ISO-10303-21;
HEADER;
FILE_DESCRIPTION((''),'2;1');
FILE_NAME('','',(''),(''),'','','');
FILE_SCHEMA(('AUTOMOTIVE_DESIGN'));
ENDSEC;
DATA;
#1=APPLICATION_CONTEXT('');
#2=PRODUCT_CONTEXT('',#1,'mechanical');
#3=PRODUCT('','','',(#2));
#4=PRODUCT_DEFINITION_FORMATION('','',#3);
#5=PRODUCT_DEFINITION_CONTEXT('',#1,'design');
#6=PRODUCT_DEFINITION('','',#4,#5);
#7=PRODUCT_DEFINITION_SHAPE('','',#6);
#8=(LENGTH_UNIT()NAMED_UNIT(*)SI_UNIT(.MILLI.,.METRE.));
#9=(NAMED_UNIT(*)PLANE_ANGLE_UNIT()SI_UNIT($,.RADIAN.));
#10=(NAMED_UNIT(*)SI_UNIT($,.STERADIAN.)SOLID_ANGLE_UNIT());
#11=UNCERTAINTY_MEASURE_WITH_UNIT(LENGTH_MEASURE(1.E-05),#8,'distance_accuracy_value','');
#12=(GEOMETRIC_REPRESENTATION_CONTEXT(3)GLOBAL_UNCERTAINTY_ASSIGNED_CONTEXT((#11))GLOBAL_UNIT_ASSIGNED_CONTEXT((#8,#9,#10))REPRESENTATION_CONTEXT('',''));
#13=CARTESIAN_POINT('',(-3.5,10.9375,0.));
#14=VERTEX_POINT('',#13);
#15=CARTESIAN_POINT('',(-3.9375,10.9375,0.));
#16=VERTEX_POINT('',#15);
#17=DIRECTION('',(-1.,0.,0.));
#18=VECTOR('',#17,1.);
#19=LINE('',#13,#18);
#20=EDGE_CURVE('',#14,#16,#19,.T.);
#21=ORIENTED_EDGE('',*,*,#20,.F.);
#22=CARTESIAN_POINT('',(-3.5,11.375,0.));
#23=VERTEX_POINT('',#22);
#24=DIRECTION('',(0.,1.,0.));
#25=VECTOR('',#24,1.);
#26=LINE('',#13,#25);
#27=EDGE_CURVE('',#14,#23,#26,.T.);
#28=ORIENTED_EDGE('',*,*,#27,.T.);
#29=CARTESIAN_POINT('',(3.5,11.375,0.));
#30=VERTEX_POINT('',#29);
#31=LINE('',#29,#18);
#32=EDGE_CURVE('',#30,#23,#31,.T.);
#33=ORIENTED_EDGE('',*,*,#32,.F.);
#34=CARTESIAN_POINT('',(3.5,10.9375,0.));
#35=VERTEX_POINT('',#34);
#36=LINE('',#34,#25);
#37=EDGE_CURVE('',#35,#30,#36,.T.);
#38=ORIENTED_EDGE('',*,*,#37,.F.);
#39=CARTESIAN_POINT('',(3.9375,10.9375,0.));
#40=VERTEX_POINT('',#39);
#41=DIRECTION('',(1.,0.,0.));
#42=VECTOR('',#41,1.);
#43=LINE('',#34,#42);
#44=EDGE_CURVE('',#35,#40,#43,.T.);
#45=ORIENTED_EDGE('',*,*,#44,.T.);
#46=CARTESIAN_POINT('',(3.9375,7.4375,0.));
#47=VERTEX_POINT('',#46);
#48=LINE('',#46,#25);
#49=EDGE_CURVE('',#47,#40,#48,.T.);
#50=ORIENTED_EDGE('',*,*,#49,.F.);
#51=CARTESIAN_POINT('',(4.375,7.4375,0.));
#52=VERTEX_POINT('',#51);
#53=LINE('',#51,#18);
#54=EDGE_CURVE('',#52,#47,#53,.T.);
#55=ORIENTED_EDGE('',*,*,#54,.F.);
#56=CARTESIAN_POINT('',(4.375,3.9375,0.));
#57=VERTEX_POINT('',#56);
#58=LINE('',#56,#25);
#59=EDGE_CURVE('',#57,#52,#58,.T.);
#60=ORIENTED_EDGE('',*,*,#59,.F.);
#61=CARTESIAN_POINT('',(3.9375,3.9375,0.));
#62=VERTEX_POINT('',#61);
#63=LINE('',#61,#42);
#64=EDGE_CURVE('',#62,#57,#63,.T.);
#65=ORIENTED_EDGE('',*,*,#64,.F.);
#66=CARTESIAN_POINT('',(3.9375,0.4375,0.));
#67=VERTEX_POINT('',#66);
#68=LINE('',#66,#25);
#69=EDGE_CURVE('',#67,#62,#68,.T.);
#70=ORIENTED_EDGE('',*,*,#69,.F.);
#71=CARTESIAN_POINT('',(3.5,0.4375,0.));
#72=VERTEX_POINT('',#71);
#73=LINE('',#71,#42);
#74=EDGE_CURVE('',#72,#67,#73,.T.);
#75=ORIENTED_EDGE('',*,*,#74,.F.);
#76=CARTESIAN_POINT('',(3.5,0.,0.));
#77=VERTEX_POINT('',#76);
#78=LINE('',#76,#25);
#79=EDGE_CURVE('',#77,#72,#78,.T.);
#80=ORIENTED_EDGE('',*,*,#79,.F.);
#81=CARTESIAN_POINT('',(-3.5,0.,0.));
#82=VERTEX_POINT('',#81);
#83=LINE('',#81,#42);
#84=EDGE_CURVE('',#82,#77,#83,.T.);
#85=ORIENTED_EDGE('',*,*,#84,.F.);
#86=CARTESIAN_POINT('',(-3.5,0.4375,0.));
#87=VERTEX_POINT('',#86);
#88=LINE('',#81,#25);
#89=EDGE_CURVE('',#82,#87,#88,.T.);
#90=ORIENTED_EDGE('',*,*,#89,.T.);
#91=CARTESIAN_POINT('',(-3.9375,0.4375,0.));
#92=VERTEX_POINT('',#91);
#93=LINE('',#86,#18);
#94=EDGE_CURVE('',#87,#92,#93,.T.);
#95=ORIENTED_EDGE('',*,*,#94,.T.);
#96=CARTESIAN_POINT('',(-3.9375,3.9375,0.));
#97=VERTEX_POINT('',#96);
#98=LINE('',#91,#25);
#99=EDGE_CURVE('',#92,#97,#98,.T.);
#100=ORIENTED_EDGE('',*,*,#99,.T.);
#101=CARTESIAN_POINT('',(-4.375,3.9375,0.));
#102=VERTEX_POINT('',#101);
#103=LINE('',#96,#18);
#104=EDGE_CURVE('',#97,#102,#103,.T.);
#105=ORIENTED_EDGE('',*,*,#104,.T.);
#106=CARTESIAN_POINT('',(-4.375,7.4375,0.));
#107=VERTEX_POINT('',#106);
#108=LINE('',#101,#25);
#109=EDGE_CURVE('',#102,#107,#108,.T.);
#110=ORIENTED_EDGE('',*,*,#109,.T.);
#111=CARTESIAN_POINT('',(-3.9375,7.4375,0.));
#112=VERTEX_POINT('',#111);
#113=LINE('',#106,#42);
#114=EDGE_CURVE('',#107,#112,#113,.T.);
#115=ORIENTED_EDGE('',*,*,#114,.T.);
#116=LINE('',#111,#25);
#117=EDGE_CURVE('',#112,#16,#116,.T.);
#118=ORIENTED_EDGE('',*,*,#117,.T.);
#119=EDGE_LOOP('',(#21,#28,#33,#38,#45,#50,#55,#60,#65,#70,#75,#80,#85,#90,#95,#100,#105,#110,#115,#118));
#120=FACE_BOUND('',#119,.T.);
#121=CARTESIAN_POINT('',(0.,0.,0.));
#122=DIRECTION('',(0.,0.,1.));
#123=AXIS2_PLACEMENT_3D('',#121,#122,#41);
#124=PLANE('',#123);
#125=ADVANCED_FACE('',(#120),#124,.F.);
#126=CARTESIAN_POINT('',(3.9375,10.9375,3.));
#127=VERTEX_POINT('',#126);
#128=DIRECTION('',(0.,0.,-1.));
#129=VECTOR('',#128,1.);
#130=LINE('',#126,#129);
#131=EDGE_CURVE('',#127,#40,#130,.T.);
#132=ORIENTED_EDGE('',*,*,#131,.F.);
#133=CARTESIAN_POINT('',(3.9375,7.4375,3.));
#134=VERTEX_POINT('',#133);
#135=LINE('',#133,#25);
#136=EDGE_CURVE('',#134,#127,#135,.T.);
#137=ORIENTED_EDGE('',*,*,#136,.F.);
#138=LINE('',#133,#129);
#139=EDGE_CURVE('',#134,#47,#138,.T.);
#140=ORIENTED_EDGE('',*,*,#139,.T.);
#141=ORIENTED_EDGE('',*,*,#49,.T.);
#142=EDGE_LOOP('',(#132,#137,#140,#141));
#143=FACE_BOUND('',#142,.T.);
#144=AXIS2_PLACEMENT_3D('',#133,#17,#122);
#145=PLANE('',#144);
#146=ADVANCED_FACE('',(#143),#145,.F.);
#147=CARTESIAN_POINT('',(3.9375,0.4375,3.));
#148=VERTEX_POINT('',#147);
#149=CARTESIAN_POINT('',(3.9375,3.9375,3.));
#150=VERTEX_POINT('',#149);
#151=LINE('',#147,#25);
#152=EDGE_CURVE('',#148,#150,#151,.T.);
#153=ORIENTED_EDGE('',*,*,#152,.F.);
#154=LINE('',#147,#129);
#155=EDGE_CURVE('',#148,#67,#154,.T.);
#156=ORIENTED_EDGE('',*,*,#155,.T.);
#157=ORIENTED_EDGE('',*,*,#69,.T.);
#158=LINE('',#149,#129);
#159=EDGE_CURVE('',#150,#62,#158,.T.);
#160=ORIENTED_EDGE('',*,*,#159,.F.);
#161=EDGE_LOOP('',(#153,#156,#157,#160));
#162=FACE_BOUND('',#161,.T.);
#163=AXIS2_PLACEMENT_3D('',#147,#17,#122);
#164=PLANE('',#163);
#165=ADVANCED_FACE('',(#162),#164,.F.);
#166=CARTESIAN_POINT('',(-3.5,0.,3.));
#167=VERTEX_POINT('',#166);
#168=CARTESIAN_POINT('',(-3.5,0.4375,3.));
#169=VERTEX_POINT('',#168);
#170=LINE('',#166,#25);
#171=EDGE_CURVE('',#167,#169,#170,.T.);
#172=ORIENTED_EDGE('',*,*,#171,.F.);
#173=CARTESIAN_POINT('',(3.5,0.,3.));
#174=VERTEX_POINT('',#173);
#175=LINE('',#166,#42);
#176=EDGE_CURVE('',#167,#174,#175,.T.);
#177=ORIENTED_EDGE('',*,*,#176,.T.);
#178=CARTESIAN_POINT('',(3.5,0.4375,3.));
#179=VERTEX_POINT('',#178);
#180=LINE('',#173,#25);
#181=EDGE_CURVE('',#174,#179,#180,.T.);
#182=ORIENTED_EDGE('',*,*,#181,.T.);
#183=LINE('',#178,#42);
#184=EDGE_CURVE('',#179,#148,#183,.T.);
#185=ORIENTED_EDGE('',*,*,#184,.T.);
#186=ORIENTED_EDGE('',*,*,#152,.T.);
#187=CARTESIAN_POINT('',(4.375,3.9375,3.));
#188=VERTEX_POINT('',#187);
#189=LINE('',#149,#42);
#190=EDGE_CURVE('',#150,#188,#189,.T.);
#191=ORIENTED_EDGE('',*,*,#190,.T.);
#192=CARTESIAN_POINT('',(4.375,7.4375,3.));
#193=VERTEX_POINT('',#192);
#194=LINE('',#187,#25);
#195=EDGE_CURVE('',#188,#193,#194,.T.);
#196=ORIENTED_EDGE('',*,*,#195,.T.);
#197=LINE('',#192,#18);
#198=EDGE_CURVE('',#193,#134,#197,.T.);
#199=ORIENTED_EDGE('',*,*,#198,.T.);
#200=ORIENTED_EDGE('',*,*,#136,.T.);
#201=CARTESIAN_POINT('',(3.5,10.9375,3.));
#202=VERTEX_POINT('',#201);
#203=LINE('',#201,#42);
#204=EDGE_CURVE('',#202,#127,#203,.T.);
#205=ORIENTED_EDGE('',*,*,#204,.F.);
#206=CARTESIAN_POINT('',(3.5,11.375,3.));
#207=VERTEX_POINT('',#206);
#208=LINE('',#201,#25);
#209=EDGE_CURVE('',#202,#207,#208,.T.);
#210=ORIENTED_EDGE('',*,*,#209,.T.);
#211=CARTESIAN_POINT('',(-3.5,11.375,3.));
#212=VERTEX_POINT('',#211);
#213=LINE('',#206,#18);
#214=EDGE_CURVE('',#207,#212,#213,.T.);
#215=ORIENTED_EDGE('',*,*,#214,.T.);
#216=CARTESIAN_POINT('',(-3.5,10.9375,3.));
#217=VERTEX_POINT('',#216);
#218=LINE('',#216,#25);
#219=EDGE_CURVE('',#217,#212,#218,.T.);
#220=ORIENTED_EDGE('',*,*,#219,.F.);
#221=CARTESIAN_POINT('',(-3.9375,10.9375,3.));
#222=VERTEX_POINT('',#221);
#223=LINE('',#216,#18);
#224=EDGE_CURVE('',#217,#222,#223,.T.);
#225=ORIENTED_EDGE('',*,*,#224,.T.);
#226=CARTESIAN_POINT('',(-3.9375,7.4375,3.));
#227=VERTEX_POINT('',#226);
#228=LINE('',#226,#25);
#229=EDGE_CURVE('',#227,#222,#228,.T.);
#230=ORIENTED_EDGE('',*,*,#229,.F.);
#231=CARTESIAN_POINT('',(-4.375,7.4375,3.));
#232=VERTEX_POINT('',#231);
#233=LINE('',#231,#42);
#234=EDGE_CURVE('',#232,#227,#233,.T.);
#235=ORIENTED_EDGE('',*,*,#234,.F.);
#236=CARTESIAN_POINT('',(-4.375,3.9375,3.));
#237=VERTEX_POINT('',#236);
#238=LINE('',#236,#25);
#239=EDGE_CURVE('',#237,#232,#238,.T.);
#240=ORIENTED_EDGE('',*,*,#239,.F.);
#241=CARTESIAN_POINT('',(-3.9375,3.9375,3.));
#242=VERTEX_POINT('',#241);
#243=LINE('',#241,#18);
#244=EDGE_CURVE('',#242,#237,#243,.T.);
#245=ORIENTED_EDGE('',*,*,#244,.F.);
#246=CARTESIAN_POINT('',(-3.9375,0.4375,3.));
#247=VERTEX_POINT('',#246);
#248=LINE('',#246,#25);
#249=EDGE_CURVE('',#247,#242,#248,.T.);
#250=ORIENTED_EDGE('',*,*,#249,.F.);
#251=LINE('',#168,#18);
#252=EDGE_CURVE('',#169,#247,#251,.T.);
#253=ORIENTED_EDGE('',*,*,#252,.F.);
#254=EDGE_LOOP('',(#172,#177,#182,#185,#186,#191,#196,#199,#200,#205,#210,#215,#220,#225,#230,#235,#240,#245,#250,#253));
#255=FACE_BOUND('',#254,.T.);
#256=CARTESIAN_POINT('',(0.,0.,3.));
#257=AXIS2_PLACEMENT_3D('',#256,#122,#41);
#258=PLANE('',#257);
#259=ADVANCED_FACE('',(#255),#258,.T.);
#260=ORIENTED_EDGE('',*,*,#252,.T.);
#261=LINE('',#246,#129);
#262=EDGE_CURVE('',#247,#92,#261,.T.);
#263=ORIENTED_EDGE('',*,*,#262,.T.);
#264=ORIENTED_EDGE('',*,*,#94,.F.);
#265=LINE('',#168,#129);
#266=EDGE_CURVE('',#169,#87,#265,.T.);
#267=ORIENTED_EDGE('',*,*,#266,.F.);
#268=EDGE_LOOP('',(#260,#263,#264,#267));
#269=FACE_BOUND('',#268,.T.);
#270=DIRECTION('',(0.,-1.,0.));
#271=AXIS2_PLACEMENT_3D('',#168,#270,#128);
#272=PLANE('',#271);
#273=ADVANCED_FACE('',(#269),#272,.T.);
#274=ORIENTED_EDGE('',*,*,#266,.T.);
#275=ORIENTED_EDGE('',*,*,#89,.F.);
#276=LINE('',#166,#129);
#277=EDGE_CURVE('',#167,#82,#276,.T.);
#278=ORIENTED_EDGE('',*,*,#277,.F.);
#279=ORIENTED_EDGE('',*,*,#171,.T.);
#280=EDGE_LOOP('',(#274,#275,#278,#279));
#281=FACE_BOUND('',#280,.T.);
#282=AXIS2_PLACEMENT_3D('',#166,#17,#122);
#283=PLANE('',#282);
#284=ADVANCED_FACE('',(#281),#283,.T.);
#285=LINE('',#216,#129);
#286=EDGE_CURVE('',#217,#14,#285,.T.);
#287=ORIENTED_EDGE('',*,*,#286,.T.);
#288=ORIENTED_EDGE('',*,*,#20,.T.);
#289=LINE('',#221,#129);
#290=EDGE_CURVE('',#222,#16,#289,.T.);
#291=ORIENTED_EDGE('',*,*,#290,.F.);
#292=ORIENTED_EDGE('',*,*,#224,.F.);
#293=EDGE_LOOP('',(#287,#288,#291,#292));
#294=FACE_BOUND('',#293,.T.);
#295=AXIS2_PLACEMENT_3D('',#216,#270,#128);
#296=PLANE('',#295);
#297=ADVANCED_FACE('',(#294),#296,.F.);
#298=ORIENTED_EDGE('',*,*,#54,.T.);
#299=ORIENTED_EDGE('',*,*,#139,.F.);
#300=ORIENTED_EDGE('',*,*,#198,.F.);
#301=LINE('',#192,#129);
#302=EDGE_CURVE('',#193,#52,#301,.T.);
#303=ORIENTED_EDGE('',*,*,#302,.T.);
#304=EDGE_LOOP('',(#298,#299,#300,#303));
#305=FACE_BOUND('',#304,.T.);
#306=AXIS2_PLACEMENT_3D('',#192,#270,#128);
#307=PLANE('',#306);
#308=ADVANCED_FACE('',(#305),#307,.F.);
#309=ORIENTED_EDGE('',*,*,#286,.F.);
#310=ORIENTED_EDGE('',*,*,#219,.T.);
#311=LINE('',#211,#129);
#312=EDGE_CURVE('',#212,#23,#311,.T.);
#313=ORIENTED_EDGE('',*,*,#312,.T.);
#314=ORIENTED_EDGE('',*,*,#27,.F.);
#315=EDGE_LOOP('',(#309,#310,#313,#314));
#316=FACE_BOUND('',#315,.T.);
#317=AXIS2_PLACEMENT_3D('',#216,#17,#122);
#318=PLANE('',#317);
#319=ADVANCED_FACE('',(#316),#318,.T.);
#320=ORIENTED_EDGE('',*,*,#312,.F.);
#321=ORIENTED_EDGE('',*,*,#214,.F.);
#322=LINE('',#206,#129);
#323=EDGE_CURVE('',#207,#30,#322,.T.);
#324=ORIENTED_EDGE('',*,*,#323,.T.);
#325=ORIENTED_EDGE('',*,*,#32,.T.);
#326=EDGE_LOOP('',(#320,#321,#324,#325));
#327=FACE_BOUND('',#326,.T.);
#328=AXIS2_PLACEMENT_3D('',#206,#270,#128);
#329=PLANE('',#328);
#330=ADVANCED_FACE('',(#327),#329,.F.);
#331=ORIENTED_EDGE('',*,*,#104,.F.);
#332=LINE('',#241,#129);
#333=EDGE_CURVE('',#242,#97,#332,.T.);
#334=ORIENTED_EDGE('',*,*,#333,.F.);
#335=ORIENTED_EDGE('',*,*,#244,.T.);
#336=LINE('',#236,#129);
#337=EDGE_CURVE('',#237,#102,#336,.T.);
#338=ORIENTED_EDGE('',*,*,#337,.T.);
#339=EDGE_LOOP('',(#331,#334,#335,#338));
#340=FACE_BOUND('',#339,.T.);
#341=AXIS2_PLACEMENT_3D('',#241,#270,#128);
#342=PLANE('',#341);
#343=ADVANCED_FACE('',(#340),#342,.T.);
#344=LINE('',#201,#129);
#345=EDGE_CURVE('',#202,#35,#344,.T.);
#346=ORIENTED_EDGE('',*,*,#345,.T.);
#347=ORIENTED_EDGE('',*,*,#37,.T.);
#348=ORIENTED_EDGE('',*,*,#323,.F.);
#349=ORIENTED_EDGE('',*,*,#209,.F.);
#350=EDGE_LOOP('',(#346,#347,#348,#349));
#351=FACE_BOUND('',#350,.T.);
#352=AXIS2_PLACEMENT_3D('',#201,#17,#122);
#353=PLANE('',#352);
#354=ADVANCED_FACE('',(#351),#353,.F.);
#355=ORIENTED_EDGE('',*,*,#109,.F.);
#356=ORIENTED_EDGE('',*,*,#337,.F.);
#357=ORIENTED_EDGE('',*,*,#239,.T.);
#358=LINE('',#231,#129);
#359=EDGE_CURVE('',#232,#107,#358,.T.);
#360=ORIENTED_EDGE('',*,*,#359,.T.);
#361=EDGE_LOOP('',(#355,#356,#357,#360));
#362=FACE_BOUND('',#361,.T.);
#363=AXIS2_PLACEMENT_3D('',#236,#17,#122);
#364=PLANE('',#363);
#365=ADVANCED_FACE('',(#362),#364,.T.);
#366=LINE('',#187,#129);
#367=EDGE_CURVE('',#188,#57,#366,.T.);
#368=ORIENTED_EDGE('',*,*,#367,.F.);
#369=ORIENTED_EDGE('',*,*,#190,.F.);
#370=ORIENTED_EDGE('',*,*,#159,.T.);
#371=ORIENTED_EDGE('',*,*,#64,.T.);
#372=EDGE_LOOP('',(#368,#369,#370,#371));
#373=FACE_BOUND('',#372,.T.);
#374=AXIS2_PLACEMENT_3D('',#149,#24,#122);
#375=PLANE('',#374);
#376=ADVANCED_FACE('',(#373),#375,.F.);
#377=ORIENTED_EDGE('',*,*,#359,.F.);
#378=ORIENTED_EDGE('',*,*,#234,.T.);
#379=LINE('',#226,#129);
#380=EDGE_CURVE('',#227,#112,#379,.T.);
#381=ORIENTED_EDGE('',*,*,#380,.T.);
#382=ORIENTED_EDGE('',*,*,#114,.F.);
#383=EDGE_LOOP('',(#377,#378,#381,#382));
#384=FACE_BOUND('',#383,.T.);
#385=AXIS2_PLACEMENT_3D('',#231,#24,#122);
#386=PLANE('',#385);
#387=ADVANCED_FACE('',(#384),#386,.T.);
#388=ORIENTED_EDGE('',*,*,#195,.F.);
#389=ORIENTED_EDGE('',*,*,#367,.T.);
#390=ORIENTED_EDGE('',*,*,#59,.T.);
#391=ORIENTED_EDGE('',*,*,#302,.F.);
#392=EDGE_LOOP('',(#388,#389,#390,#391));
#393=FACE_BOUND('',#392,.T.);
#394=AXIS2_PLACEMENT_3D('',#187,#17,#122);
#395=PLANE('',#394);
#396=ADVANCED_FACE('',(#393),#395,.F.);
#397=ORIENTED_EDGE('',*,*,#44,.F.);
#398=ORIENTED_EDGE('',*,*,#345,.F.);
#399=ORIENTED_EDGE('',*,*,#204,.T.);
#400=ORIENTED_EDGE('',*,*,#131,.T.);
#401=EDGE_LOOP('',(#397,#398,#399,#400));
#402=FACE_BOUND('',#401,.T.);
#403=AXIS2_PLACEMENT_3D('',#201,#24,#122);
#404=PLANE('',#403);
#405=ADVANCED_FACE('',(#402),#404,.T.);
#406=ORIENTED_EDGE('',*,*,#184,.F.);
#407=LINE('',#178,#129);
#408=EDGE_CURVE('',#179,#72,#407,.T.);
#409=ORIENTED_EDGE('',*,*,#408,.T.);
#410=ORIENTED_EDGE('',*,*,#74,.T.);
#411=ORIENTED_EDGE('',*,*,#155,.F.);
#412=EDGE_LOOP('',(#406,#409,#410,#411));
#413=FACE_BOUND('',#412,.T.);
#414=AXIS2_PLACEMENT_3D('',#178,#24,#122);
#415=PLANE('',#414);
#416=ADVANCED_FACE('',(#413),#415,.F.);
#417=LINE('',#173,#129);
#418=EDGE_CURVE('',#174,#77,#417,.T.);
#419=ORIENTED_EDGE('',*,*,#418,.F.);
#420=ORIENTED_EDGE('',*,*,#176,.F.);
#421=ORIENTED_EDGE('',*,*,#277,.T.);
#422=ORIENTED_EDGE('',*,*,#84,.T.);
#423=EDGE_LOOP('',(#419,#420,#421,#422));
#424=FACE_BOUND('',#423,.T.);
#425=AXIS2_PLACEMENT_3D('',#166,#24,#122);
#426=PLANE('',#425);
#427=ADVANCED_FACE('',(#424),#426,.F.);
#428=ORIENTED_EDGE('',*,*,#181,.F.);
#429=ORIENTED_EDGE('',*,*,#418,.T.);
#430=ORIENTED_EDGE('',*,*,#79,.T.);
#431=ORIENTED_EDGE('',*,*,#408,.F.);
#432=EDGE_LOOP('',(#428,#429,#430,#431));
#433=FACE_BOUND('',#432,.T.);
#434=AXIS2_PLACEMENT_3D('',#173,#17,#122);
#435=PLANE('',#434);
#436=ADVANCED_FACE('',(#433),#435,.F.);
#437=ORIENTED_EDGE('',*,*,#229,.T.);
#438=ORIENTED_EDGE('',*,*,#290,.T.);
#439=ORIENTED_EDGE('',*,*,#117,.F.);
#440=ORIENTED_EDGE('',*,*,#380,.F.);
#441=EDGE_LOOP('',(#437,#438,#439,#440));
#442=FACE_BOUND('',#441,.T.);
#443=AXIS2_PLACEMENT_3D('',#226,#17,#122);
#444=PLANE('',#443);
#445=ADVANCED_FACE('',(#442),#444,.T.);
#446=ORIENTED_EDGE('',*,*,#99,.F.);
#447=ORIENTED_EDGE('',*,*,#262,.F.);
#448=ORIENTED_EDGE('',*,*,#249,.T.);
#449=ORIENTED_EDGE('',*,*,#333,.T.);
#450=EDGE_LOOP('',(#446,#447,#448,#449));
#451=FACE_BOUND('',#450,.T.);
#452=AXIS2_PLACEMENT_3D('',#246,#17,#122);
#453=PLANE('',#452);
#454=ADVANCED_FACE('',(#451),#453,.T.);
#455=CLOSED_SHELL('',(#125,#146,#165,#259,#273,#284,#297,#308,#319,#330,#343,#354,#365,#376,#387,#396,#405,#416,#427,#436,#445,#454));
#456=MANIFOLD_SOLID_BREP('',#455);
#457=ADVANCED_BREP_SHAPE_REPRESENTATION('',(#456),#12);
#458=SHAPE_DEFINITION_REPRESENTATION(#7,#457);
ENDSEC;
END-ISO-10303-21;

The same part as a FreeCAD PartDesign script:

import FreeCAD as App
import Part
import Sketcher
Q = App.Units.Quantity

doc = App.newDocument("Part")
params = doc.addObject("Spreadsheet::Sheet", "Params")
for row, (alias, value) in enumerate([
    ("sketch1_width", "7 mm"),
    ("sketch1_height", "3.5 mm"),
    ("pad1_length", "3 mm"),
], start=1):
    params.set(f"A{row}", alias)
    params.set(f"B{row}", "=" + value)
    params.setAlias(f"B{row}", alias)

body = doc.addObject("PartDesign::Body", "Body")

sketch1 = body.newObject("Sketcher::SketchObject", "Sketch")
sketch1.AttachmentSupport = (doc.getObject("XY_Plane"), [""])
sketch1.MapMode = "FlatFace"
sketch1.addGeometry([
    Part.LineSegment(App.Vector(-3.5, 0, 0), App.Vector(3.5, 0, 0)),
    Part.LineSegment(App.Vector(3.5, 0, 0), App.Vector(3.5, 0.44, 0)),
    Part.LineSegment(App.Vector(3.5, 0.44, 0), App.Vector(3.94, 0.44, 0)),
    Part.LineSegment(App.Vector(3.94, 0.44, 0), App.Vector(3.94, 3.94, 0)),
    Part.LineSegment(App.Vector(3.94, 3.94, 0), App.Vector(4.38, 3.94, 0)),
    Part.LineSegment(App.Vector(4.38, 3.94, 0), App.Vector(4.38, 7.44, 0)),
    Part.LineSegment(App.Vector(4.38, 7.44, 0), App.Vector(3.94, 7.44, 0)),
    Part.LineSegment(App.Vector(3.94, 7.44, 0), App.Vector(3.94, 10.94, 0)),
    Part.LineSegment(App.Vector(3.94, 10.94, 0), App.Vector(3.5, 10.94, 0)),
    Part.LineSegment(App.Vector(3.5, 10.94, 0), App.Vector(3.5, 11.38, 0)),
    Part.LineSegment(App.Vector(3.5, 11.38, 0), App.Vector(-3.5, 11.38, 0)),
    Part.LineSegment(App.Vector(-3.5, 11.38, 0), App.Vector(-3.5, 10.94, 0)),
    Part.LineSegment(App.Vector(-3.5, 10.94, 0), App.Vector(-3.94, 10.94, 0)),
    Part.LineSegment(App.Vector(-3.94, 10.94, 0), App.Vector(-3.94, 7.44, 0)),
    Part.LineSegment(App.Vector(-3.94, 7.44, 0), App.Vector(-4.38, 7.44, 0)),
    Part.LineSegment(App.Vector(-4.38, 7.44, 0), App.Vector(-4.38, 3.94, 0)),
    Part.LineSegment(App.Vector(-4.38, 3.94, 0), App.Vector(-3.94, 3.94, 0)),
    Part.LineSegment(App.Vector(-3.94, 3.94, 0), App.Vector(-3.94, 0.44, 0)),
    Part.LineSegment(App.Vector(-3.94, 0.44, 0), App.Vector(-3.5, 0.44, 0)),
    Part.LineSegment(App.Vector(-3.5, 0.44, 0), App.Vector(-3.5, 0, 0)),
], False)
sketch1.addConstraint([
    Sketcher.Constraint("Coincident", 0, 2, 1, 1),
    Sketcher.Constraint("Coincident", 1, 2, 2, 1),
    Sketcher.Constraint("Coincident", 2, 2, 3, 1),
    Sketcher.Constraint("Coincident", 3, 2, 4, 1),
    Sketcher.Constraint("Coincident", 4, 2, 5, 1),
    Sketcher.Constraint("Coincident", 5, 2, 6, 1),
    Sketcher.Constraint("Coincident", 6, 2, 7, 1),
    Sketcher.Constraint("Coincident", 7, 2, 8, 1),
    Sketcher.Constraint("Coincident", 8, 2, 9, 1),
    Sketcher.Constraint("Coincident", 9, 2, 10, 1),
    Sketcher.Constraint("Coincident", 10, 2, 11, 1),
    Sketcher.Constraint("Coincident", 11, 2, 12, 1),
    Sketcher.Constraint("Coincident", 12, 2, 13, 1),
    Sketcher.Constraint("Coincident", 13, 2, 14, 1),
    Sketcher.Constraint("Coincident", 14, 2, 15, 1),
    Sketcher.Constraint("Coincident", 15, 2, 16, 1),
    Sketcher.Constraint("Coincident", 16, 2, 17, 1),
    Sketcher.Constraint("Coincident", 17, 2, 18, 1),
    Sketcher.Constraint("Coincident", 18, 2, 19, 1),
    Sketcher.Constraint("Coincident", 19, 2, 0, 1),
    Sketcher.Constraint("Horizontal", 0),
    Sketcher.Constraint("Vertical", 1),
    Sketcher.Constraint("Horizontal", 2),
    Sketcher.Constraint("Vertical", 3),
    Sketcher.Constraint("Horizontal", 4),
    Sketcher.Constraint("Vertical", 5),
    Sketcher.Constraint("Horizontal", 6),
    Sketcher.Constraint("Vertical", 7),
    Sketcher.Constraint("Horizontal", 8),
    Sketcher.Constraint("Vertical", 9),
    Sketcher.Constraint("Horizontal", 10),
    Sketcher.Constraint("Vertical", 11),
    Sketcher.Constraint("Horizontal", 12),
    Sketcher.Constraint("Vertical", 13),
    Sketcher.Constraint("Horizontal", 14),
    Sketcher.Constraint("Vertical", 15),
    Sketcher.Constraint("Horizontal", 16),
    Sketcher.Constraint("Vertical", 17),
    Sketcher.Constraint("Horizontal", 18),
    Sketcher.Constraint("Vertical", 19),
    Sketcher.Constraint("Symmetric", 0, 2, 19, 2, -1, 1),
    Sketcher.Constraint("Symmetric", 8, 2, 11, 2, -2),
    Sketcher.Constraint("Symmetric", 6, 2, 13, 2, -2),
    Sketcher.Constraint("Symmetric", 4, 2, 15, 2, -2),
    Sketcher.Constraint("Symmetric", 2, 2, 17, 2, -2),
    Sketcher.Constraint("Vertical", 3, 2, 6, 2),
    Sketcher.Constraint("Vertical", 1, 2, 8, 2),
    Sketcher.Constraint("Equal", 2, 4),
    Sketcher.Constraint("Equal", 18, 1),
    Sketcher.Constraint("Equal", 3, 5),
    Sketcher.Constraint("Equal", 5, 7),
    Sketcher.Constraint("Equal", 1, 9),
    Sketcher.Constraint("DistanceX", 0, 1, 0, 2, Q("7 mm")),
    Sketcher.Constraint("DistanceY", 3, 1, 3, 2, Q("3.5 mm")),
    Sketcher.Constraint("DistanceX", 2, 1, 2, 2, Q("0.4375 mm")),
])
sketch1.setExpression("Constraints[52]", "Params.sketch1_width")
sketch1.setExpression("Constraints[53]", "Params.sketch1_height")
pad1 = body.newObject("PartDesign::Pad", "Pad")
pad1.Profile = sketch1
pad1.setExpression("Length", "Params.pad1_length")

doc.recompute()
